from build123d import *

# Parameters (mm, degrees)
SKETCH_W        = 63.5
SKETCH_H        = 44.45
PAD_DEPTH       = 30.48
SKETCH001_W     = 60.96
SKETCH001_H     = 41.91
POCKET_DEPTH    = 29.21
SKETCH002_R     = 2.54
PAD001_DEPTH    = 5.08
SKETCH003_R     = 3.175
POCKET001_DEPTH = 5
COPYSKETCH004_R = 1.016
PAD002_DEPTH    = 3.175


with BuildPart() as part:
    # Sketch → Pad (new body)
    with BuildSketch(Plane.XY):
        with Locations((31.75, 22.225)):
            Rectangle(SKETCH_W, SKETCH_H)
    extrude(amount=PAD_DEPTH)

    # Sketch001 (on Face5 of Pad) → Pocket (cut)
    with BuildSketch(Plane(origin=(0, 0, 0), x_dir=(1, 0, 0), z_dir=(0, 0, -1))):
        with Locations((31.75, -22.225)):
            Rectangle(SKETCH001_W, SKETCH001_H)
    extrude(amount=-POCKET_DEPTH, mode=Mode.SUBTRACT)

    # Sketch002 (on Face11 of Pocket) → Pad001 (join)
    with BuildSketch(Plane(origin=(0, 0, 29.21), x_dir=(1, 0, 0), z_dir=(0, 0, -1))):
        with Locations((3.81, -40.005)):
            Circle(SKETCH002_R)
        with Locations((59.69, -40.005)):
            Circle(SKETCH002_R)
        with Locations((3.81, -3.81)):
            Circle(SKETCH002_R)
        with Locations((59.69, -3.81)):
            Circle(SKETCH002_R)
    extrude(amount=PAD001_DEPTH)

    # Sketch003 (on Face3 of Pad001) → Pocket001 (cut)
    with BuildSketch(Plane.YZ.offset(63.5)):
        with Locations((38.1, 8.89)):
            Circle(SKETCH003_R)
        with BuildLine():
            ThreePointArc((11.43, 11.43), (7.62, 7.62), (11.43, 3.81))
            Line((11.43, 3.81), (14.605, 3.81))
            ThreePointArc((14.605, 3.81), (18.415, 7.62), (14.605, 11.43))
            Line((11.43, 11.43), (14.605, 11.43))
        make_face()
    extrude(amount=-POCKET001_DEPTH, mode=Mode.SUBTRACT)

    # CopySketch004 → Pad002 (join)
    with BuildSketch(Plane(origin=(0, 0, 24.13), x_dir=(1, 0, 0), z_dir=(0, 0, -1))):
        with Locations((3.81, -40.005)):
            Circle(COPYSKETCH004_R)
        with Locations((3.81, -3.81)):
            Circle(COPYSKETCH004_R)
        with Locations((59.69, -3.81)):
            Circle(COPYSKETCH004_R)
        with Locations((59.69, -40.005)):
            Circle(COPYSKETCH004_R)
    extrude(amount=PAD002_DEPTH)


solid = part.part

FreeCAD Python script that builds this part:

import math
import FreeCAD as App
import Part
import Sketcher
Q = App.Units.Quantity


def add_polygon(sketch, points):
    """Adds a closed chain of lines whose ends are joined by coincident constraints."""
    first, n = sketch.GeometryCount, len(points)
    for a, b in zip(points, points[1:] + points[:1]):
        sketch.addGeometry(Part.LineSegment(App.Vector(*a, 0), App.Vector(*b, 0)), False)
    for i in range(n):
        sketch.addConstraint(Sketcher.Constraint("Coincident", first + i, 2, first + (i + 1) % n, 1))

doc = App.newDocument("Part")
body = doc.addObject("PartDesign::Body", "Body")

sketch1 = doc.addObject("Sketcher::SketchObject", "Sketch")
body.addObject(sketch1)
sketch1.AttachmentSupport = (doc.XY_Plane, [""])
sketch1.MapMode = "FlatFace"
add_polygon(sketch1, [(0, 44.45), (0, 0), (63.5, 0), (63.5, 44.45)])
sketch1.addConstraint(Sketcher.Constraint("Vertical", 0))
sketch1.addConstraint(Sketcher.Constraint("Horizontal", 1))
sketch1.addConstraint(Sketcher.Constraint("Vertical", 2))
sketch1.addConstraint(Sketcher.Constraint("Horizontal", 3))
sketch1.addConstraint(Sketcher.Constraint("Coincident", 0, 2, -1, 1))
sketch1.addConstraint(Sketcher.Constraint("DistanceX", 1, 1, 1, 2, Q("2.5 in")))
sketch1.addConstraint(Sketcher.Constraint("DistanceY", 0, 2, 0, 1, Q("1.75 in")))
pad1 = doc.addObject("PartDesign::Pad", "Pad")
body.addObject(pad1)
pad1.Profile = sketch1
pad1.Length = Q("1.2 in")

sketch2 = doc.addObject("Sketcher::SketchObject", "Sketch001")
body.addObject(sketch2)
sketch2.AttachmentSupport = (doc.XY_Plane, [""])
sketch2.MapMode = "FlatFace"
add_polygon(sketch2, [(1.27, 1.27), (1.27, 43.18), (62.23, 43.18), (62.23, 1.27)])
sketch2.addConstraint(Sketcher.Constraint("Vertical", 0))
sketch2.addConstraint(Sketcher.Constraint("Horizontal", 1))
sketch2.addConstraint(Sketcher.Constraint("Vertical", 2))
sketch2.addConstraint(Sketcher.Constraint("Horizontal", 3))
sketch2.addConstraint(Sketcher.Constraint("DistanceX", 1, 1, 1, 2, Q("2.4 in")))
sketch2.addConstraint(Sketcher.Constraint("DistanceY", 0, 1, 0, 2, Q("1.65 in")))
sketch2.addConstraint(Sketcher.Constraint("DistanceY", -1, 1, 0, 2, Q("1.7 in")))
sketch2.addConstraint(Sketcher.Constraint("DistanceX", -1, 1, 0, 2, Q("0.05 in")))
pocket1 = doc.addObject("PartDesign::Pocket", "Pocket")
body.addObject(pocket1)
pocket1.Profile = sketch2
pocket1.Length = Q("1.15 in")
pocket1.Reversed = True

sketch3 = doc.addObject("Sketcher::SketchObject", "Sketch002")
body.addObject(sketch3)
sketch3.AttachmentSupport = (doc.XY_Plane, [""])
sketch3.MapMode = "FlatFace"
sketch3.AttachmentOffset = App.Placement(App.Vector(0, 0, 1.15 * 25.4), App.Rotation())
sketch3.addGeometry(Part.Circle(App.Vector(3.81, 40.005, 0), App.Vector(0, 0, 1), 2.54), False)
sketch3.addGeometry(Part.Circle(App.Vector(59.69, 40.005, 0), App.Vector(0, 0, 1), 2.54), False)
sketch3.addGeometry(Part.Circle(App.Vector(3.81, 3.81, 0), App.Vector(0, 0, 1), 2.54), False)
sketch3.addGeometry(Part.Circle(App.Vector(59.69, 3.81, 0), App.Vector(0, 0, 1), 2.54), False)
sketch3.addConstraint(Sketcher.Constraint("Equal", 0, 1))
sketch3.addConstraint(Sketcher.Constraint("Equal", 1, 2))
sketch3.addConstraint(Sketcher.Constraint("Equal", 2, 3))
sketch3.addConstraint(Sketcher.Constraint("Horizontal", 0, 3, 1, 3))
sketch3.addConstraint(Sketcher.Constraint("Horizontal", 2, 3, 3, 3))
sketch3.addConstraint(Sketcher.Constraint("Vertical", 0, 3, 2, 3))
sketch3.addConstraint(Sketcher.Constraint("Vertical", 1, 3, 3, 3))
sketch3.addConstraint(Sketcher.Constraint("Diameter", 0, Q("0.2 in")))
sketch3.addConstraint(Sketcher.Constraint("DistanceX", 0, 3, 1, 3, Q("2.2 in")))
sketch3.addConstraint(Sketcher.Constraint("DistanceX", -1, 1, 0, 3, Q("0.15 in")))
sketch3.addConstraint(Sketcher.Constraint("DistanceY", -1, 1, 2, 3, Q("0.15 in")))
sketch3.addConstraint(Sketcher.Constraint("DistanceY", -1, 1, 0, 3, Q("1.575 in")))
pad2 = doc.addObject("PartDesign::Pad", "Pad001")
body.addObject(pad2)
pad2.Profile = sketch3
pad2.Length = Q("0.2 in")
pad2.Reversed = True

sketch4 = doc.addObject("Sketcher::SketchObject", "Sketch003")
body.addObject(sketch4)
sketch4.AttachmentSupport = (doc.YZ_Plane, [""])
sketch4.MapMode = "FlatFace"
sketch4.AttachmentOffset = App.Placement(App.Vector(0, 0, 2.5 * 25.4), App.Rotation())
sketch4.addGeometry(Part.Circle(App.Vector(38.1, 8.89, 0), App.Vector(0, 0, 1), 3.175), False)
sketch4.addGeometry(Part.ArcOfCircle(Part.Circle(App.Vector(11.43, 7.62, 0), App.Vector(0, 0, 1), 3.81), math.radians(90), math.radians(270)), False)
sketch4.addGeometry(Part.LineSegment(App.Vector(11.43, 3.81, 0), App.Vector(14.605, 3.81, 0)), False)
sketch4.addGeometry(Part.ArcOfCircle(Part.Circle(App.Vector(14.605, 7.62, 0), App.Vector(0, 0, 1), 3.81), math.radians(-90), math.radians(90)), False)
sketch4.addGeometry(Part.LineSegment(App.Vector(14.605, 11.43, 0), App.Vector(11.43, 11.43, 0)), False)
sketch4.addConstraint(Sketcher.Constraint("Tangent", 1, 2, 2, 1))
sketch4.addConstraint(Sketcher.Constraint("Tangent", 2, 2, 3, 1))
sketch4.addConstraint(Sketcher.Constraint("Tangent", 3, 2, 4, 1))
sketch4.addConstraint(Sketcher.Constraint("Tangent", 4, 2, 1, 1))
sketch4.addConstraint(Sketcher.Constraint("Horizontal", 2))
sketch4.addConstraint(Sketcher.Constraint("Horizontal", 4))
sketch4.addConstraint(Sketcher.Constraint("Diameter", 0, Q("0.25 in")))
sketch4.addConstraint(Sketcher.Constraint("Radius", 1, Q("0.15 in")))
sketch4.addConstraint(Sketcher.Constraint("DistanceX", -1, 1, 0, 3, Q("1.5 in")))
sketch4.addConstraint(Sketcher.Constraint("DistanceY", -1, 1, 1, 3, Q("0.3 in")))
sketch4.addConstraint(Sketcher.Constraint("DistanceY", 1, 2, 0, 3, Q("0.2 in")))
sketch4.addConstraint(Sketcher.Constraint("DistanceX", 2, 1, 2, 2, Q("0.125 in")))
sketch4.addConstraint(Sketcher.Constraint("DistanceX", -1, 1, 1, 3, Q("0.45 in")))
pocket2 = doc.addObject("PartDesign::Pocket", "Pocket001")
body.addObject(pocket2)
pocket2.Profile = sketch4
pocket2.Length = 5

sketch5 = doc.addObject("Sketcher::SketchObject", "Sketch004")
body.addObject(sketch5)
sketch5.AttachmentSupport = (doc.XY_Plane, [""])
sketch5.MapMode = "FlatFace"
sketch5.AttachmentOffset = App.Placement(App.Vector(0, 0, 0.95 * 25.4), App.Rotation())
sketch5.addGeometry(Part.Circle(App.Vector(3.81, 40.005, 0), App.Vector(0, 0, 1), 1.016), False)
sketch5.addGeometry(Part.Circle(App.Vector(3.81, 3.81, 0), App.Vector(0, 0, 1), 1.016), False)
sketch5.addGeometry(Part.Circle(App.Vector(59.69, 3.81, 0), App.Vector(0, 0, 1), 1.016), False)
sketch5.addGeometry(Part.Circle(App.Vector(59.69, 40.005, 0), App.Vector(0, 0, 1), 1.016), False)
sketch5.addConstraint(Sketcher.Constraint("Equal", 0, 1))
sketch5.addConstraint(Sketcher.Constraint("Equal", 1, 2))
sketch5.addConstraint(Sketcher.Constraint("Equal", 2, 3))
sketch5.addConstraint(Sketcher.Constraint("Horizontal", 1, 3, 2, 3))
sketch5.addConstraint(Sketcher.Constraint("Horizontal", 0, 3, 3, 3))
sketch5.addConstraint(Sketcher.Constraint("Vertical", 0, 3, 1, 3))
sketch5.addConstraint(Sketcher.Constraint("Vertical", 2, 3, 3, 3))
sketch5.addConstraint(Sketcher.Constraint("Diameter", 0, Q("0.08 in")))
sketch5.addConstraint(Sketcher.Constraint("DistanceX", 1, 3, 2, 3, Q("2.2 in")))
sketch5.addConstraint(Sketcher.Constraint("DistanceX", -1, 1, 0, 3, Q("0.15 in")))
sketch5.addConstraint(Sketcher.Constraint("DistanceY", -1, 1, 1, 3, Q("0.15 in")))
sketch5.addConstraint(Sketcher.Constraint("DistanceY", -1, 1, 0, 3, Q("1.575 in")))
pad3 = doc.addObject("PartDesign::Pad", "Pad002")
body.addObject(pad3)
pad3.Profile = sketch5
pad3.Length = Q("0.125 in")
pad3.Reversed = True

doc.recompute()
